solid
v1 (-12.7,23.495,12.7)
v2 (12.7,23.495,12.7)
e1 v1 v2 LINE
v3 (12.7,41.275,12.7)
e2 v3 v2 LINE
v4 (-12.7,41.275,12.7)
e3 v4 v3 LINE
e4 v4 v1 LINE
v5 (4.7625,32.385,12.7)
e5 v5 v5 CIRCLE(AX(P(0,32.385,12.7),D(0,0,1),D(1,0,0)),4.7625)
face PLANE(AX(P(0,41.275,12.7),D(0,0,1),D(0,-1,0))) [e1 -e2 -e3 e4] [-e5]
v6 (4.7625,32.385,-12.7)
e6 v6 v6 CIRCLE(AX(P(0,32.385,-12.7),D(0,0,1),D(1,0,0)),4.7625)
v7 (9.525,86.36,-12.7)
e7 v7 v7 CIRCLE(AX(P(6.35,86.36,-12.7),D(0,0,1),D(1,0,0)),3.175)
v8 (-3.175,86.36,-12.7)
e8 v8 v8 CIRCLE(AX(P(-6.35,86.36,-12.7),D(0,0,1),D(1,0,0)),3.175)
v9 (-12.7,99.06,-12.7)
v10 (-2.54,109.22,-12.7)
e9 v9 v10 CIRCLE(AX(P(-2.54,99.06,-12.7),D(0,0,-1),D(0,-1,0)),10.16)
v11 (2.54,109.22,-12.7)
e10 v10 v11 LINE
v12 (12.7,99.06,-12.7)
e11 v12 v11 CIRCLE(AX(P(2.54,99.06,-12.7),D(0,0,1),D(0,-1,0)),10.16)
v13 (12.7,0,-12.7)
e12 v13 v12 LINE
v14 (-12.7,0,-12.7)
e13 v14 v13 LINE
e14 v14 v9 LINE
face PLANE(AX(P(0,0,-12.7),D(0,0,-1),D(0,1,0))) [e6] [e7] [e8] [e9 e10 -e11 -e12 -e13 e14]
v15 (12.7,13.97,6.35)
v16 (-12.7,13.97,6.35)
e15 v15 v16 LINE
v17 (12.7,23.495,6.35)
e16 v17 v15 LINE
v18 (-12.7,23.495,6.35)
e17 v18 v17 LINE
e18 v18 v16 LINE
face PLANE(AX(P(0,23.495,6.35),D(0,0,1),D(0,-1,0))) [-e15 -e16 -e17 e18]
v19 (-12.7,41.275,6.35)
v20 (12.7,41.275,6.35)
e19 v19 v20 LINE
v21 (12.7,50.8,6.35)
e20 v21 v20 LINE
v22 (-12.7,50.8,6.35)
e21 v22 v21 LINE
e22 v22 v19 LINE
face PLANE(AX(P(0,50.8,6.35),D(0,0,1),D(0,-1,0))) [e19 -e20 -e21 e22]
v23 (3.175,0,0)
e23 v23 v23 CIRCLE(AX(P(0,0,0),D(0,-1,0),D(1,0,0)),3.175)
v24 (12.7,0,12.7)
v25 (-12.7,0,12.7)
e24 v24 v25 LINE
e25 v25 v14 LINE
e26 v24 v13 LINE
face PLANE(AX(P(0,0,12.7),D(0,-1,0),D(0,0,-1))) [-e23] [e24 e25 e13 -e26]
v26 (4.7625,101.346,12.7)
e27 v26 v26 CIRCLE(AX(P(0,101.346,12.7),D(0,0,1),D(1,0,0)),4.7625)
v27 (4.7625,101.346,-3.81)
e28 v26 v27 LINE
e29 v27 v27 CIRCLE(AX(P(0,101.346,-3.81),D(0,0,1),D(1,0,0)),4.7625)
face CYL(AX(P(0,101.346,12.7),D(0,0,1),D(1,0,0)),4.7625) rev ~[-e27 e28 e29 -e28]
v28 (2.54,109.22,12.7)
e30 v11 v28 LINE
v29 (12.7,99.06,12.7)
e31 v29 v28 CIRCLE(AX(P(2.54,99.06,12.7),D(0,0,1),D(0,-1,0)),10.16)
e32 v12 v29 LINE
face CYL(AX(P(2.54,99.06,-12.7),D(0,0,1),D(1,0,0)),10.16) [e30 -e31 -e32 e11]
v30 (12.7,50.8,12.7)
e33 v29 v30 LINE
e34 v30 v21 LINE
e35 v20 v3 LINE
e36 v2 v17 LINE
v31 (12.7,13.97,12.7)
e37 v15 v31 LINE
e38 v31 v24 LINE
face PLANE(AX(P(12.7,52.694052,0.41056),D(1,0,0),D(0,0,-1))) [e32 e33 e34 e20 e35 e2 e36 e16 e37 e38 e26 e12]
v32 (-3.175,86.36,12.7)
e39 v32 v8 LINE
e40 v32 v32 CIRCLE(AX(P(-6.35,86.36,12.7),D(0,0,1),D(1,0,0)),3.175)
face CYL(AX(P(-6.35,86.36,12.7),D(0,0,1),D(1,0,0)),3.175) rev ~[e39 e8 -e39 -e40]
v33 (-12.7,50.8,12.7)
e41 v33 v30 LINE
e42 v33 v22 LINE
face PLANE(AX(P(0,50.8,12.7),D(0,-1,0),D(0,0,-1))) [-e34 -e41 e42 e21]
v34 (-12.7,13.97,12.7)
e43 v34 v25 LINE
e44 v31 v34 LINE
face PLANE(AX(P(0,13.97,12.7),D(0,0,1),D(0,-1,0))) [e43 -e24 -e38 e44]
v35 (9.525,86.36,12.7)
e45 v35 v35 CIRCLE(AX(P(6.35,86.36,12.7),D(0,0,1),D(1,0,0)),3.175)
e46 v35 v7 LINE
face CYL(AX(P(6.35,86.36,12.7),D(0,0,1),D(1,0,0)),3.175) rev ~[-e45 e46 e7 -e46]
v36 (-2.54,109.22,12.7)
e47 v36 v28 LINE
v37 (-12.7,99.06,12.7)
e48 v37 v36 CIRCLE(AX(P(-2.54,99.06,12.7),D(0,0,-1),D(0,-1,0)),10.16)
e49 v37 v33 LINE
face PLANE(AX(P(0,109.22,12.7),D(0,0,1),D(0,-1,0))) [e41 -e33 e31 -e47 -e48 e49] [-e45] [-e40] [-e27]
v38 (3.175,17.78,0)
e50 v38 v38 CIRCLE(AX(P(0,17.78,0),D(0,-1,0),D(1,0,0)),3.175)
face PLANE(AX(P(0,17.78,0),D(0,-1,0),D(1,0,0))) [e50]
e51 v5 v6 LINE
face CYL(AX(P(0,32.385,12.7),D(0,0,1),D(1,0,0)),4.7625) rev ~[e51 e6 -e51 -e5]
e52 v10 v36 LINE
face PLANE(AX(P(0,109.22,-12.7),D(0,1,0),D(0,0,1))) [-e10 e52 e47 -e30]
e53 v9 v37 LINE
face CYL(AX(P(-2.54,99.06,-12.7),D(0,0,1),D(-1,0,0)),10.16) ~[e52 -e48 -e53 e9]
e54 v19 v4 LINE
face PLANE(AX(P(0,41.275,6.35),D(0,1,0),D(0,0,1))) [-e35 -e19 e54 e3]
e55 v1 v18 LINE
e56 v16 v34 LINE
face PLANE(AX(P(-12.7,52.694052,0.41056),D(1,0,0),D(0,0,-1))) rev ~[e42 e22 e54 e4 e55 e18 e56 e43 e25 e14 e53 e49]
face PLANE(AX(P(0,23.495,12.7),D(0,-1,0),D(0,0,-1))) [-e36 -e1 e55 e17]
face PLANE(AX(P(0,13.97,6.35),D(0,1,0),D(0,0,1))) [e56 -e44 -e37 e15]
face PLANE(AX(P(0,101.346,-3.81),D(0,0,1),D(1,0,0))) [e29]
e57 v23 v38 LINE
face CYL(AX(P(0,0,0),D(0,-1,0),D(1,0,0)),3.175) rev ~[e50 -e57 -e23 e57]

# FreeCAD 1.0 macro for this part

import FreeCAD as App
import Part
import Sketcher

V = App.Vector
Q = App.Units.Quantity


def edges_at(feature, points):
    """Names of the edges that pass closest to the given points."""
    edges = feature.Shape.Edges
    near = lambda p: min(range(len(edges)), key=lambda i: edges[i].distToShape(Part.Vertex(*p))[0])
    return sorted({f"Edge{near(p) + 1}" for p in points})

doc = App.newDocument("Part")
body = doc.addObject("PartDesign::Body", "Body")

sketch1 = body.newObject("Sketcher::SketchObject", "Sketch")
sketch1.AttachmentSupport = (doc.getObject("YZ_Plane"), [""])
sketch1.MapMode = "FlatFace"
sketch1.addGeometry([
    Part.LineSegment(V(0, 13, 0), V(0, -13, 0)),
    Part.LineSegment(V(0, -13, 0), V(109, -13, 0)),
    Part.LineSegment(V(109, -13, 0), V(109, 13, 0)),
    Part.LineSegment(V(109, 13, 0), V(51, 13, 0)),
    Part.LineSegment(V(51, 13, 0), V(51, 6, 0)),
    Part.LineSegment(V(51, 6, 0), V(41, 6, 0)),
    Part.LineSegment(V(41, 6, 0), V(41, 13, 0)),
    Part.LineSegment(V(41, 13, 0), V(23, 13, 0)),
    Part.LineSegment(V(23, 13, 0), V(23, 6, 0)),
    Part.LineSegment(V(23, 6, 0), V(14, 6, 0)),
    Part.LineSegment(V(14, 6, 0), V(14, 13, 0)),
    Part.LineSegment(V(14, 13, 0), V(0, 13, 0)),
], False)
sketch1.addConstraint([
    Sketcher.Constraint("Coincident", 0, 2, 1, 1),
    Sketcher.Constraint("Coincident", 1, 2, 2, 1),
    Sketcher.Constraint("Coincident", 2, 2, 3, 1),
    Sketcher.Constraint("Coincident", 3, 2, 4, 1),
    Sketcher.Constraint("Coincident", 4, 2, 5, 1),
    Sketcher.Constraint("Coincident", 5, 2, 6, 1),
    Sketcher.Constraint("Coincident", 6, 2, 7, 1),
    Sketcher.Constraint("Coincident", 7, 2, 8, 1),
    Sketcher.Constraint("Coincident", 8, 2, 9, 1),
    Sketcher.Constraint("Coincident", 9, 2, 10, 1),
    Sketcher.Constraint("Coincident", 10, 2, 11, 1),
    Sketcher.Constraint("Coincident", 11, 2, 0, 1),
    Sketcher.Constraint("Vertical", 0),
    Sketcher.Constraint("Horizontal", 1),
    Sketcher.Constraint("Vertical", 2),
    Sketcher.Constraint("Horizontal", 3),
    Sketcher.Constraint("Vertical", 4),
    Sketcher.Constraint("Horizontal", 5),
    Sketcher.Constraint("Vertical", 6),
    Sketcher.Constraint("Horizontal", 7),
    Sketcher.Constraint("Vertical", 8),
    Sketcher.Constraint("Horizontal", 9),
    Sketcher.Constraint("Vertical", 10),
    Sketcher.Constraint("Horizontal", 11),
    Sketcher.Constraint("Symmetric", 0, 2, 11, 2, -1, 1),
    Sketcher.Constraint("Horizontal", 3, 2, 6, 2),
    Sketcher.Constraint("Horizontal", 5, 2, 8, 2),
    Sketcher.Constraint("Horizontal", 7, 2, 10, 2),
    Sketcher.Constraint("Equal", 5, 9),
    Sketcher.Constraint("DistanceY", 0, 2, 0, 1, Q("1 in")),
    Sketcher.Constraint("DistanceX", 1, 1, 1, 2, Q("4.3 in")),
    Sketcher.Constraint("DistanceX", 3, 2, 3, 1, Q("2.3 in")),
    Sketcher.Constraint("DistanceX", 7, 2, 7, 1, Q("0.7 in")),
    Sketcher.Constraint("DistanceX", 11, 2, 11, 1, Q("0.55 in")),
    Sketcher.Constraint("DistanceY", 4, 2, 4, 1, Q("0.25 in")),
])
pad1 = body.newObject("PartDesign::Pad", "Pad")
pad1.Profile = sketch1
pad1.Length = Q("1 in")
pad1.Midplane = True

sketch2 = body.newObject("Sketcher::SketchObject", "Sketch001")
sketch2.AttachmentSupport = (doc.getObject("XY_Plane"), [""])
sketch2.MapMode = "FlatFace"
sketch2.AttachmentOffset = App.Placement(V(0, 0, 0.5 * 25.4), App.Rotation())
sketch2.addGeometry(Part.Circle(V(0, 32.4, 0), V(0, 0, 1), 4.8), False)
sketch2.addConstraint([
    Sketcher.Constraint("PointOnObject", 0, 3, -2),
    Sketcher.Constraint("Diameter", 0, Q("0.375 in")),
    Sketcher.Constraint("DistanceY", -1, 1, 0, 3, Q("1.275 in")),
])
pocket1 = body.newObject("PartDesign::Pocket", "Pocket")
pocket1.Profile = sketch2
pocket1.Type = "ThroughAll"
doc.recompute()

fillet = body.newObject("PartDesign::Fillet", "Fillet")
fillet.Base = (pocket1, edges_at(pocket1, [(-12.7, 109.22, 0), (12.7, 109.22, 0)]))
fillet.Radius = Q("0.4 in")

sketch3 = body.newObject("Sketcher::SketchObject", "Sketch002")
sketch3.AttachmentSupport = (doc.getObject("XY_Plane"), [""])
sketch3.MapMode = "FlatFace"
sketch3.AttachmentOffset = App.Placement(V(0, 0, 0.5 * 25.4), App.Rotation())
sketch3.addGeometry([
    Part.Circle(V(-6.3, 86.4, 0), V(0, 0, 1), 3.2),
    Part.Circle(V(6.3, 86.4, 0), V(0, 0, 1), 3.2),
], False)
sketch3.addConstraint([
    Sketcher.Constraint("Equal", 0, 1),
    Sketcher.Constraint("Symmetric", 0, 3, 1, 3, -2),
    Sketcher.Constraint("Diameter", 0, Q("0.25 in")),
    Sketcher.Constraint("DistanceY", -1, 1, 0, 3, Q("3.4 in")),
    Sketcher.Constraint("DistanceX", 0, 3, 1, 3, Q("0.5 in")),
])
pocket2 = body.newObject("PartDesign::Pocket", "Pocket001")
pocket2.Profile = sketch3
pocket2.Type = "ThroughAll"

sketch4 = body.newObject("Sketcher::SketchObject", "Sketch003")
sketch4.AttachmentSupport = (doc.getObject("XZ_Plane"), [""])
sketch4.MapMode = "FlatFace"
sketch4.addGeometry(Part.Circle(V(0, 0, 0), V(0, 0, 1), 3.2), False)
sketch4.addConstraint([
    Sketcher.Constraint("Coincident", 0, 3, -1, 1),
    Sketcher.Constraint("Diameter", 0, Q("0.25 in")),
])
pocket3 = body.newObject("PartDesign::Pocket", "Pocket002")
pocket3.Profile = sketch4
pocket3.Length = Q("0.7 in")

sketch5 = body.newObject("Sketcher::SketchObject", "Sketch004")
sketch5.AttachmentSupport = (doc.getObject("XY_Plane"), [""])
sketch5.MapMode = "FlatFace"
sketch5.AttachmentOffset = App.Placement(V(0, 0, 0.5 * 25.4), App.Rotation())
sketch5.addGeometry(Part.Circle(V(0, 101.3, 0), V(0, 0, 1), 4.8), False)
sketch5.addConstraint([
    Sketcher.Constraint("PointOnObject", 0, 3, -2),
    Sketcher.Constraint("Diameter", 0, Q("0.375 in")),
    Sketcher.Constraint("DistanceY", -1, 1, 0, 3, Q("3.99 in")),
])
pocket4 = body.newObject("PartDesign::Pocket", "Pocket003")
pocket4.Profile = sketch5
pocket4.Length = Q("0.65 in")

doc.recompute()
